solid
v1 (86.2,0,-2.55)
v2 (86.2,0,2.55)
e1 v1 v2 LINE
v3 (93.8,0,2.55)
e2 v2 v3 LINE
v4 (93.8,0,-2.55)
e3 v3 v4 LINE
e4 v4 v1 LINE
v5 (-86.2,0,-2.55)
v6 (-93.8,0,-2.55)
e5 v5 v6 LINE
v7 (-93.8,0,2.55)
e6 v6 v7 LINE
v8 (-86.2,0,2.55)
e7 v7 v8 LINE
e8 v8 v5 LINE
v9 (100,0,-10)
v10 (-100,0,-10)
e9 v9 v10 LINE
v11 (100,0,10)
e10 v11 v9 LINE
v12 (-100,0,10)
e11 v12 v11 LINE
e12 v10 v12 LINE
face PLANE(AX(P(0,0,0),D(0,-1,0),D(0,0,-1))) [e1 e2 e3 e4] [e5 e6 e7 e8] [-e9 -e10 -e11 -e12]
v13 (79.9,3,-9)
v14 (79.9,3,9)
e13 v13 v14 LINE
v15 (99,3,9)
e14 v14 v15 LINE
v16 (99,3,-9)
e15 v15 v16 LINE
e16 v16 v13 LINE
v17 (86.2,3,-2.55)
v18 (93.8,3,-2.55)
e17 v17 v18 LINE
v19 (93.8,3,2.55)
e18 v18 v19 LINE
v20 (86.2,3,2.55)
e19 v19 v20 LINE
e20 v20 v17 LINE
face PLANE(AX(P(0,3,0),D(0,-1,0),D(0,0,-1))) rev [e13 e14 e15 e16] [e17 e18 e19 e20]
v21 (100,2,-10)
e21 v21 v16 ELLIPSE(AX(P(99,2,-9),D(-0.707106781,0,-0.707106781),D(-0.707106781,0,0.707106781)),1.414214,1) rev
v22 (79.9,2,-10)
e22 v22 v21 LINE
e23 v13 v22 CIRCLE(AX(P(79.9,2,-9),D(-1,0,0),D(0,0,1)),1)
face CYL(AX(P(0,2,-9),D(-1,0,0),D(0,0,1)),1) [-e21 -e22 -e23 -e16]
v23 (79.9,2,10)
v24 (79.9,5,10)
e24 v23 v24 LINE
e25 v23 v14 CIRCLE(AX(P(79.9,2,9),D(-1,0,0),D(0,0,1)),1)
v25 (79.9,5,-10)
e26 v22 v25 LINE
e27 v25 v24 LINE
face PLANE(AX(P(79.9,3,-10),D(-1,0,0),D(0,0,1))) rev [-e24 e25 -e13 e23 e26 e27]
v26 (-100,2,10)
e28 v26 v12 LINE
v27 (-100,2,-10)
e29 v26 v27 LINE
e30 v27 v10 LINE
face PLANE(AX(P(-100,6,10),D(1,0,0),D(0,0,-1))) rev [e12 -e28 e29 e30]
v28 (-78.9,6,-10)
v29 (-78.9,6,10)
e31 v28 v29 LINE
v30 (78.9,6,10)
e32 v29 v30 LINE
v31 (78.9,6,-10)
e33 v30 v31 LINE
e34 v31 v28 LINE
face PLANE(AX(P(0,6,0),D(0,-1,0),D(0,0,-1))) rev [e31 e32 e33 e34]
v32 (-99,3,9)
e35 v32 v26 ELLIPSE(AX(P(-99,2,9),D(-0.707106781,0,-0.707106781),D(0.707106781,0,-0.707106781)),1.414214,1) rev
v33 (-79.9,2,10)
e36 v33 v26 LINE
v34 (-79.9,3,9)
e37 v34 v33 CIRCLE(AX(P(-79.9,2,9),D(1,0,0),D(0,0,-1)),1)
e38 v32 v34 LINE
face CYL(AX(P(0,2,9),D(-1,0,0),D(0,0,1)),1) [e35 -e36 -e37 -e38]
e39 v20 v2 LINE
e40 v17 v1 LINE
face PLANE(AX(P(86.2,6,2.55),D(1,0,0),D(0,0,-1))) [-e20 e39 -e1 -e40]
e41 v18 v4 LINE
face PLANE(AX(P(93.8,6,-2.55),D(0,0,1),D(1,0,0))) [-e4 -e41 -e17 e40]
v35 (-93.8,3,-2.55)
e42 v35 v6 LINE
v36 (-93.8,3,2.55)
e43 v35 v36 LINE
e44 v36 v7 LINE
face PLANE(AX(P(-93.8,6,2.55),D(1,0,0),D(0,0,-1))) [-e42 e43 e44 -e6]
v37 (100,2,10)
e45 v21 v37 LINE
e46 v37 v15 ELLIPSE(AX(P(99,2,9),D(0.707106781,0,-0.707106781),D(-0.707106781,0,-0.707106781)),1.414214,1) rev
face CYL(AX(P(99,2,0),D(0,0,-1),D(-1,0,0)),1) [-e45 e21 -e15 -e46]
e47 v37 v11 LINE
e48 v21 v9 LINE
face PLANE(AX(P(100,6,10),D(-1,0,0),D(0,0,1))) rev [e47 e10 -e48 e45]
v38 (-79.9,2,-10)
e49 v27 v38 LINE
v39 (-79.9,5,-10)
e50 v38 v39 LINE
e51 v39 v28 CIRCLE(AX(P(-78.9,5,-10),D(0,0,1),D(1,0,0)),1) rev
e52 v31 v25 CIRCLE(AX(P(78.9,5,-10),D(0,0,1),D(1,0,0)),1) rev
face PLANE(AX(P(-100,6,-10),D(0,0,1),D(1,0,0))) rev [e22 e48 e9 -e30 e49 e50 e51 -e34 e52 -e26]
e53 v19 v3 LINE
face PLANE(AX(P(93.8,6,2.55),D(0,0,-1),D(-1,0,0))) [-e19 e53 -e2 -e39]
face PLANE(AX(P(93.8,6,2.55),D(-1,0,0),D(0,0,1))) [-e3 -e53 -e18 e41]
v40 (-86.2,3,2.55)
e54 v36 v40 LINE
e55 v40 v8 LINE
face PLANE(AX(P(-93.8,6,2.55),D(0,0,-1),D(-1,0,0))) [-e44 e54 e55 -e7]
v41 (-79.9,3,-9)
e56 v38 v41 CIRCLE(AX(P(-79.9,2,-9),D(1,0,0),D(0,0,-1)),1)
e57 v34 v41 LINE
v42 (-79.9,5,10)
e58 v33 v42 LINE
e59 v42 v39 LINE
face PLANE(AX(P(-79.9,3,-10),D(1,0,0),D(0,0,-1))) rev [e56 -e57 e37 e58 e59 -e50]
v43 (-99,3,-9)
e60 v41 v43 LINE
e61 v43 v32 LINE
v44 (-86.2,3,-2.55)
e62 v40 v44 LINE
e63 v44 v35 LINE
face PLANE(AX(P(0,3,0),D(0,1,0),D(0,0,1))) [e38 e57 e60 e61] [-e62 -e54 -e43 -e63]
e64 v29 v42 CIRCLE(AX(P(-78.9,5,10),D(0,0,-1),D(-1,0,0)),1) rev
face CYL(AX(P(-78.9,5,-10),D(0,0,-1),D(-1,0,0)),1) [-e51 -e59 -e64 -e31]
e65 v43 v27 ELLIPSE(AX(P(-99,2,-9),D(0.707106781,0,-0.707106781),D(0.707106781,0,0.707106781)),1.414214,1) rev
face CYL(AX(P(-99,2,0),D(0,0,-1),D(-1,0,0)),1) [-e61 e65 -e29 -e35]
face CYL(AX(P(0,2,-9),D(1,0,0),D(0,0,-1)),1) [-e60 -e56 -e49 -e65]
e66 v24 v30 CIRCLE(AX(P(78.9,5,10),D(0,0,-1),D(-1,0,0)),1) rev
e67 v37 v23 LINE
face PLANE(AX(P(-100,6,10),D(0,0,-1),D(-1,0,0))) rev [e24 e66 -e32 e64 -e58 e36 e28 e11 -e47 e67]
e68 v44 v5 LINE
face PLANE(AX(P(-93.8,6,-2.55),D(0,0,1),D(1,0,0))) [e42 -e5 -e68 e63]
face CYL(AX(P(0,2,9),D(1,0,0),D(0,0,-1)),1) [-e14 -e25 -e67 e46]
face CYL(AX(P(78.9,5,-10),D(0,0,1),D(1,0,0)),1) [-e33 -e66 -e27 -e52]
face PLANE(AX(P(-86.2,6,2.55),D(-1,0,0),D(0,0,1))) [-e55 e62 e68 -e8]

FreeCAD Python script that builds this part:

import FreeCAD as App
import Part
import Sketcher
Q = App.Units.Quantity


def edges_at(feature, points):
    """Names of the edges that pass closest to the given points."""
    edges = feature.Shape.Edges
    near = lambda p: min(range(len(edges)), key=lambda i: edges[i].distToShape(Part.Vertex(*p))[0])
    return sorted({f"Edge{near(p) + 1}" for p in points})


def add_polygon(sketch, points):
    """Adds a closed chain of lines whose ends are joined by coincident constraints."""
    first, n = sketch.GeometryCount, len(points)
    for a, b in zip(points, points[1:] + points[:1]):
        sketch.addGeometry(Part.LineSegment(App.Vector(*a, 0), App.Vector(*b, 0)), False)
    for i in range(n):
        sketch.addConstraint(Sketcher.Constraint("Coincident", first + i, 2, first + (i + 1) % n, 1))

doc = App.newDocument("Part")
body = doc.addObject("PartDesign::Body", "Body")

# Sketch on XZ plane
sketch1 = body.newObject("Sketcher::SketchObject", "Sketch")
sketch1.AttachmentSupport = (doc.getObject("XZ_Plane"), [""])
sketch1.MapMode = "FlatFace"
add_polygon(sketch1, [(-100, -10), (-100, 10), (100, 10), (100, -10)])  # lines 0-3
add_polygon(sketch1, [(-86, 3), (-94, 3), (-94, -3), (-86, -3)])  # lines 4-7
add_polygon(sketch1, [(94, 3), (86, 3), (86, -3), (94, -3)])  # lines 8-11
sketch1.addConstraint([
    Sketcher.Constraint("Vertical", 0),
    Sketcher.Constraint("Horizontal", 1),
    Sketcher.Constraint("Vertical", 2),
    Sketcher.Constraint("Horizontal", 3),
    Sketcher.Constraint("Horizontal", 4),
    Sketcher.Constraint("Vertical", 5),
    Sketcher.Constraint("Horizontal", 6),
    Sketcher.Constraint("Vertical", 7),
    Sketcher.Constraint("Horizontal", 8),
    Sketcher.Constraint("Vertical", 9),
    Sketcher.Constraint("Horizontal", 10),
    Sketcher.Constraint("Vertical", 11),
    Sketcher.Constraint("Symmetric", 0, 2, 2, 2, -1, 1),
    Sketcher.Constraint("Symmetric", 6, 2, 8, 2, -1, 1),
    Sketcher.Constraint("Symmetric", 4, 2, 10, 2, -1, 1),
    Sketcher.Constraint("Horizontal", 7, 2, 8, 2),
    Sketcher.Constraint("DistanceX", 1, 1, 1, 2, Q("200 mm")),
    Sketcher.Constraint("DistanceY", 0, 1, 0, 2, Q("20 mm")),
    Sketcher.Constraint("DistanceX", 4, 2, 4, 1, Q("7.6 mm")),
    Sketcher.Constraint("DistanceY", 5, 2, 5, 1, Q("5.1 mm")),
    Sketcher.Constraint("DistanceX", 4, 2, 8, 2, Q("180 mm")),
])
pad1 = body.newObject("PartDesign::Pad", "Pad")
pad1.Profile = sketch1
pad1.Length = 6
pad1.Reversed = True

# Sketch on XZ plane
sketch2 = body.newObject("Sketcher::SketchObject", "Sketch001")
sketch2.AttachmentSupport = (doc.getObject("XZ_Plane"), [""])
sketch2.MapMode = "FlatFace"
sketch2.AttachmentOffset = App.Placement(App.Vector(0, 0, -6), App.Rotation())
add_polygon(sketch2, [(-100, -10), (-100, 10), (-80, 10), (-80, -10)])  # lines 0-3
add_polygon(sketch2, [(80, -10), (80, 10), (100, 10), (100, -10)])  # lines 4-7
sketch2.addConstraint([
    Sketcher.Constraint("Vertical", 0),
    Sketcher.Constraint("Horizontal", 1),
    Sketcher.Constraint("Vertical", 2),
    Sketcher.Constraint("Horizontal", 3),
    Sketcher.Constraint("Vertical", 4),
    Sketcher.Constraint("Horizontal", 5),
    Sketcher.Constraint("Vertical", 6),
    Sketcher.Constraint("Horizontal", 7),
    Sketcher.Constraint("Symmetric", 2, 2, 4, 2, -1, 1),
    Sketcher.Constraint("Symmetric", 0, 2, 6, 2, -1, 1),
    Sketcher.Constraint("Horizontal", 1, 2, 4, 2),
    Sketcher.Constraint("DistanceY", 0, 1, 0, 2, Q("20 mm")),
    Sketcher.Constraint("DistanceX", 1, 1, 1, 2, Q("20.1 mm")),
    Sketcher.Constraint("DistanceX", 0, 2, -1, 1, Q("100 mm")),
])
pocket1 = body.newObject("PartDesign::Pocket", "Pocket")
pocket1.Profile = sketch2
pocket1.Length = 3
pocket1.Reversed = True
doc.recompute()

fillet = body.newObject("PartDesign::Fillet", "Fillet")
fillet.Base = (pocket1, edges_at(pocket1, [
    (-100, 3, 0),
    (-89.95, 3, -10),
    (-89.95, 3, 10),
    (-79.9, 6, 0),
    (100, 3, 0),
    (89.95, 3, 10),
    (89.95, 3, -10),
    (79.9, 6, 0),
]))
fillet.Radius = 1

doc.recompute()
